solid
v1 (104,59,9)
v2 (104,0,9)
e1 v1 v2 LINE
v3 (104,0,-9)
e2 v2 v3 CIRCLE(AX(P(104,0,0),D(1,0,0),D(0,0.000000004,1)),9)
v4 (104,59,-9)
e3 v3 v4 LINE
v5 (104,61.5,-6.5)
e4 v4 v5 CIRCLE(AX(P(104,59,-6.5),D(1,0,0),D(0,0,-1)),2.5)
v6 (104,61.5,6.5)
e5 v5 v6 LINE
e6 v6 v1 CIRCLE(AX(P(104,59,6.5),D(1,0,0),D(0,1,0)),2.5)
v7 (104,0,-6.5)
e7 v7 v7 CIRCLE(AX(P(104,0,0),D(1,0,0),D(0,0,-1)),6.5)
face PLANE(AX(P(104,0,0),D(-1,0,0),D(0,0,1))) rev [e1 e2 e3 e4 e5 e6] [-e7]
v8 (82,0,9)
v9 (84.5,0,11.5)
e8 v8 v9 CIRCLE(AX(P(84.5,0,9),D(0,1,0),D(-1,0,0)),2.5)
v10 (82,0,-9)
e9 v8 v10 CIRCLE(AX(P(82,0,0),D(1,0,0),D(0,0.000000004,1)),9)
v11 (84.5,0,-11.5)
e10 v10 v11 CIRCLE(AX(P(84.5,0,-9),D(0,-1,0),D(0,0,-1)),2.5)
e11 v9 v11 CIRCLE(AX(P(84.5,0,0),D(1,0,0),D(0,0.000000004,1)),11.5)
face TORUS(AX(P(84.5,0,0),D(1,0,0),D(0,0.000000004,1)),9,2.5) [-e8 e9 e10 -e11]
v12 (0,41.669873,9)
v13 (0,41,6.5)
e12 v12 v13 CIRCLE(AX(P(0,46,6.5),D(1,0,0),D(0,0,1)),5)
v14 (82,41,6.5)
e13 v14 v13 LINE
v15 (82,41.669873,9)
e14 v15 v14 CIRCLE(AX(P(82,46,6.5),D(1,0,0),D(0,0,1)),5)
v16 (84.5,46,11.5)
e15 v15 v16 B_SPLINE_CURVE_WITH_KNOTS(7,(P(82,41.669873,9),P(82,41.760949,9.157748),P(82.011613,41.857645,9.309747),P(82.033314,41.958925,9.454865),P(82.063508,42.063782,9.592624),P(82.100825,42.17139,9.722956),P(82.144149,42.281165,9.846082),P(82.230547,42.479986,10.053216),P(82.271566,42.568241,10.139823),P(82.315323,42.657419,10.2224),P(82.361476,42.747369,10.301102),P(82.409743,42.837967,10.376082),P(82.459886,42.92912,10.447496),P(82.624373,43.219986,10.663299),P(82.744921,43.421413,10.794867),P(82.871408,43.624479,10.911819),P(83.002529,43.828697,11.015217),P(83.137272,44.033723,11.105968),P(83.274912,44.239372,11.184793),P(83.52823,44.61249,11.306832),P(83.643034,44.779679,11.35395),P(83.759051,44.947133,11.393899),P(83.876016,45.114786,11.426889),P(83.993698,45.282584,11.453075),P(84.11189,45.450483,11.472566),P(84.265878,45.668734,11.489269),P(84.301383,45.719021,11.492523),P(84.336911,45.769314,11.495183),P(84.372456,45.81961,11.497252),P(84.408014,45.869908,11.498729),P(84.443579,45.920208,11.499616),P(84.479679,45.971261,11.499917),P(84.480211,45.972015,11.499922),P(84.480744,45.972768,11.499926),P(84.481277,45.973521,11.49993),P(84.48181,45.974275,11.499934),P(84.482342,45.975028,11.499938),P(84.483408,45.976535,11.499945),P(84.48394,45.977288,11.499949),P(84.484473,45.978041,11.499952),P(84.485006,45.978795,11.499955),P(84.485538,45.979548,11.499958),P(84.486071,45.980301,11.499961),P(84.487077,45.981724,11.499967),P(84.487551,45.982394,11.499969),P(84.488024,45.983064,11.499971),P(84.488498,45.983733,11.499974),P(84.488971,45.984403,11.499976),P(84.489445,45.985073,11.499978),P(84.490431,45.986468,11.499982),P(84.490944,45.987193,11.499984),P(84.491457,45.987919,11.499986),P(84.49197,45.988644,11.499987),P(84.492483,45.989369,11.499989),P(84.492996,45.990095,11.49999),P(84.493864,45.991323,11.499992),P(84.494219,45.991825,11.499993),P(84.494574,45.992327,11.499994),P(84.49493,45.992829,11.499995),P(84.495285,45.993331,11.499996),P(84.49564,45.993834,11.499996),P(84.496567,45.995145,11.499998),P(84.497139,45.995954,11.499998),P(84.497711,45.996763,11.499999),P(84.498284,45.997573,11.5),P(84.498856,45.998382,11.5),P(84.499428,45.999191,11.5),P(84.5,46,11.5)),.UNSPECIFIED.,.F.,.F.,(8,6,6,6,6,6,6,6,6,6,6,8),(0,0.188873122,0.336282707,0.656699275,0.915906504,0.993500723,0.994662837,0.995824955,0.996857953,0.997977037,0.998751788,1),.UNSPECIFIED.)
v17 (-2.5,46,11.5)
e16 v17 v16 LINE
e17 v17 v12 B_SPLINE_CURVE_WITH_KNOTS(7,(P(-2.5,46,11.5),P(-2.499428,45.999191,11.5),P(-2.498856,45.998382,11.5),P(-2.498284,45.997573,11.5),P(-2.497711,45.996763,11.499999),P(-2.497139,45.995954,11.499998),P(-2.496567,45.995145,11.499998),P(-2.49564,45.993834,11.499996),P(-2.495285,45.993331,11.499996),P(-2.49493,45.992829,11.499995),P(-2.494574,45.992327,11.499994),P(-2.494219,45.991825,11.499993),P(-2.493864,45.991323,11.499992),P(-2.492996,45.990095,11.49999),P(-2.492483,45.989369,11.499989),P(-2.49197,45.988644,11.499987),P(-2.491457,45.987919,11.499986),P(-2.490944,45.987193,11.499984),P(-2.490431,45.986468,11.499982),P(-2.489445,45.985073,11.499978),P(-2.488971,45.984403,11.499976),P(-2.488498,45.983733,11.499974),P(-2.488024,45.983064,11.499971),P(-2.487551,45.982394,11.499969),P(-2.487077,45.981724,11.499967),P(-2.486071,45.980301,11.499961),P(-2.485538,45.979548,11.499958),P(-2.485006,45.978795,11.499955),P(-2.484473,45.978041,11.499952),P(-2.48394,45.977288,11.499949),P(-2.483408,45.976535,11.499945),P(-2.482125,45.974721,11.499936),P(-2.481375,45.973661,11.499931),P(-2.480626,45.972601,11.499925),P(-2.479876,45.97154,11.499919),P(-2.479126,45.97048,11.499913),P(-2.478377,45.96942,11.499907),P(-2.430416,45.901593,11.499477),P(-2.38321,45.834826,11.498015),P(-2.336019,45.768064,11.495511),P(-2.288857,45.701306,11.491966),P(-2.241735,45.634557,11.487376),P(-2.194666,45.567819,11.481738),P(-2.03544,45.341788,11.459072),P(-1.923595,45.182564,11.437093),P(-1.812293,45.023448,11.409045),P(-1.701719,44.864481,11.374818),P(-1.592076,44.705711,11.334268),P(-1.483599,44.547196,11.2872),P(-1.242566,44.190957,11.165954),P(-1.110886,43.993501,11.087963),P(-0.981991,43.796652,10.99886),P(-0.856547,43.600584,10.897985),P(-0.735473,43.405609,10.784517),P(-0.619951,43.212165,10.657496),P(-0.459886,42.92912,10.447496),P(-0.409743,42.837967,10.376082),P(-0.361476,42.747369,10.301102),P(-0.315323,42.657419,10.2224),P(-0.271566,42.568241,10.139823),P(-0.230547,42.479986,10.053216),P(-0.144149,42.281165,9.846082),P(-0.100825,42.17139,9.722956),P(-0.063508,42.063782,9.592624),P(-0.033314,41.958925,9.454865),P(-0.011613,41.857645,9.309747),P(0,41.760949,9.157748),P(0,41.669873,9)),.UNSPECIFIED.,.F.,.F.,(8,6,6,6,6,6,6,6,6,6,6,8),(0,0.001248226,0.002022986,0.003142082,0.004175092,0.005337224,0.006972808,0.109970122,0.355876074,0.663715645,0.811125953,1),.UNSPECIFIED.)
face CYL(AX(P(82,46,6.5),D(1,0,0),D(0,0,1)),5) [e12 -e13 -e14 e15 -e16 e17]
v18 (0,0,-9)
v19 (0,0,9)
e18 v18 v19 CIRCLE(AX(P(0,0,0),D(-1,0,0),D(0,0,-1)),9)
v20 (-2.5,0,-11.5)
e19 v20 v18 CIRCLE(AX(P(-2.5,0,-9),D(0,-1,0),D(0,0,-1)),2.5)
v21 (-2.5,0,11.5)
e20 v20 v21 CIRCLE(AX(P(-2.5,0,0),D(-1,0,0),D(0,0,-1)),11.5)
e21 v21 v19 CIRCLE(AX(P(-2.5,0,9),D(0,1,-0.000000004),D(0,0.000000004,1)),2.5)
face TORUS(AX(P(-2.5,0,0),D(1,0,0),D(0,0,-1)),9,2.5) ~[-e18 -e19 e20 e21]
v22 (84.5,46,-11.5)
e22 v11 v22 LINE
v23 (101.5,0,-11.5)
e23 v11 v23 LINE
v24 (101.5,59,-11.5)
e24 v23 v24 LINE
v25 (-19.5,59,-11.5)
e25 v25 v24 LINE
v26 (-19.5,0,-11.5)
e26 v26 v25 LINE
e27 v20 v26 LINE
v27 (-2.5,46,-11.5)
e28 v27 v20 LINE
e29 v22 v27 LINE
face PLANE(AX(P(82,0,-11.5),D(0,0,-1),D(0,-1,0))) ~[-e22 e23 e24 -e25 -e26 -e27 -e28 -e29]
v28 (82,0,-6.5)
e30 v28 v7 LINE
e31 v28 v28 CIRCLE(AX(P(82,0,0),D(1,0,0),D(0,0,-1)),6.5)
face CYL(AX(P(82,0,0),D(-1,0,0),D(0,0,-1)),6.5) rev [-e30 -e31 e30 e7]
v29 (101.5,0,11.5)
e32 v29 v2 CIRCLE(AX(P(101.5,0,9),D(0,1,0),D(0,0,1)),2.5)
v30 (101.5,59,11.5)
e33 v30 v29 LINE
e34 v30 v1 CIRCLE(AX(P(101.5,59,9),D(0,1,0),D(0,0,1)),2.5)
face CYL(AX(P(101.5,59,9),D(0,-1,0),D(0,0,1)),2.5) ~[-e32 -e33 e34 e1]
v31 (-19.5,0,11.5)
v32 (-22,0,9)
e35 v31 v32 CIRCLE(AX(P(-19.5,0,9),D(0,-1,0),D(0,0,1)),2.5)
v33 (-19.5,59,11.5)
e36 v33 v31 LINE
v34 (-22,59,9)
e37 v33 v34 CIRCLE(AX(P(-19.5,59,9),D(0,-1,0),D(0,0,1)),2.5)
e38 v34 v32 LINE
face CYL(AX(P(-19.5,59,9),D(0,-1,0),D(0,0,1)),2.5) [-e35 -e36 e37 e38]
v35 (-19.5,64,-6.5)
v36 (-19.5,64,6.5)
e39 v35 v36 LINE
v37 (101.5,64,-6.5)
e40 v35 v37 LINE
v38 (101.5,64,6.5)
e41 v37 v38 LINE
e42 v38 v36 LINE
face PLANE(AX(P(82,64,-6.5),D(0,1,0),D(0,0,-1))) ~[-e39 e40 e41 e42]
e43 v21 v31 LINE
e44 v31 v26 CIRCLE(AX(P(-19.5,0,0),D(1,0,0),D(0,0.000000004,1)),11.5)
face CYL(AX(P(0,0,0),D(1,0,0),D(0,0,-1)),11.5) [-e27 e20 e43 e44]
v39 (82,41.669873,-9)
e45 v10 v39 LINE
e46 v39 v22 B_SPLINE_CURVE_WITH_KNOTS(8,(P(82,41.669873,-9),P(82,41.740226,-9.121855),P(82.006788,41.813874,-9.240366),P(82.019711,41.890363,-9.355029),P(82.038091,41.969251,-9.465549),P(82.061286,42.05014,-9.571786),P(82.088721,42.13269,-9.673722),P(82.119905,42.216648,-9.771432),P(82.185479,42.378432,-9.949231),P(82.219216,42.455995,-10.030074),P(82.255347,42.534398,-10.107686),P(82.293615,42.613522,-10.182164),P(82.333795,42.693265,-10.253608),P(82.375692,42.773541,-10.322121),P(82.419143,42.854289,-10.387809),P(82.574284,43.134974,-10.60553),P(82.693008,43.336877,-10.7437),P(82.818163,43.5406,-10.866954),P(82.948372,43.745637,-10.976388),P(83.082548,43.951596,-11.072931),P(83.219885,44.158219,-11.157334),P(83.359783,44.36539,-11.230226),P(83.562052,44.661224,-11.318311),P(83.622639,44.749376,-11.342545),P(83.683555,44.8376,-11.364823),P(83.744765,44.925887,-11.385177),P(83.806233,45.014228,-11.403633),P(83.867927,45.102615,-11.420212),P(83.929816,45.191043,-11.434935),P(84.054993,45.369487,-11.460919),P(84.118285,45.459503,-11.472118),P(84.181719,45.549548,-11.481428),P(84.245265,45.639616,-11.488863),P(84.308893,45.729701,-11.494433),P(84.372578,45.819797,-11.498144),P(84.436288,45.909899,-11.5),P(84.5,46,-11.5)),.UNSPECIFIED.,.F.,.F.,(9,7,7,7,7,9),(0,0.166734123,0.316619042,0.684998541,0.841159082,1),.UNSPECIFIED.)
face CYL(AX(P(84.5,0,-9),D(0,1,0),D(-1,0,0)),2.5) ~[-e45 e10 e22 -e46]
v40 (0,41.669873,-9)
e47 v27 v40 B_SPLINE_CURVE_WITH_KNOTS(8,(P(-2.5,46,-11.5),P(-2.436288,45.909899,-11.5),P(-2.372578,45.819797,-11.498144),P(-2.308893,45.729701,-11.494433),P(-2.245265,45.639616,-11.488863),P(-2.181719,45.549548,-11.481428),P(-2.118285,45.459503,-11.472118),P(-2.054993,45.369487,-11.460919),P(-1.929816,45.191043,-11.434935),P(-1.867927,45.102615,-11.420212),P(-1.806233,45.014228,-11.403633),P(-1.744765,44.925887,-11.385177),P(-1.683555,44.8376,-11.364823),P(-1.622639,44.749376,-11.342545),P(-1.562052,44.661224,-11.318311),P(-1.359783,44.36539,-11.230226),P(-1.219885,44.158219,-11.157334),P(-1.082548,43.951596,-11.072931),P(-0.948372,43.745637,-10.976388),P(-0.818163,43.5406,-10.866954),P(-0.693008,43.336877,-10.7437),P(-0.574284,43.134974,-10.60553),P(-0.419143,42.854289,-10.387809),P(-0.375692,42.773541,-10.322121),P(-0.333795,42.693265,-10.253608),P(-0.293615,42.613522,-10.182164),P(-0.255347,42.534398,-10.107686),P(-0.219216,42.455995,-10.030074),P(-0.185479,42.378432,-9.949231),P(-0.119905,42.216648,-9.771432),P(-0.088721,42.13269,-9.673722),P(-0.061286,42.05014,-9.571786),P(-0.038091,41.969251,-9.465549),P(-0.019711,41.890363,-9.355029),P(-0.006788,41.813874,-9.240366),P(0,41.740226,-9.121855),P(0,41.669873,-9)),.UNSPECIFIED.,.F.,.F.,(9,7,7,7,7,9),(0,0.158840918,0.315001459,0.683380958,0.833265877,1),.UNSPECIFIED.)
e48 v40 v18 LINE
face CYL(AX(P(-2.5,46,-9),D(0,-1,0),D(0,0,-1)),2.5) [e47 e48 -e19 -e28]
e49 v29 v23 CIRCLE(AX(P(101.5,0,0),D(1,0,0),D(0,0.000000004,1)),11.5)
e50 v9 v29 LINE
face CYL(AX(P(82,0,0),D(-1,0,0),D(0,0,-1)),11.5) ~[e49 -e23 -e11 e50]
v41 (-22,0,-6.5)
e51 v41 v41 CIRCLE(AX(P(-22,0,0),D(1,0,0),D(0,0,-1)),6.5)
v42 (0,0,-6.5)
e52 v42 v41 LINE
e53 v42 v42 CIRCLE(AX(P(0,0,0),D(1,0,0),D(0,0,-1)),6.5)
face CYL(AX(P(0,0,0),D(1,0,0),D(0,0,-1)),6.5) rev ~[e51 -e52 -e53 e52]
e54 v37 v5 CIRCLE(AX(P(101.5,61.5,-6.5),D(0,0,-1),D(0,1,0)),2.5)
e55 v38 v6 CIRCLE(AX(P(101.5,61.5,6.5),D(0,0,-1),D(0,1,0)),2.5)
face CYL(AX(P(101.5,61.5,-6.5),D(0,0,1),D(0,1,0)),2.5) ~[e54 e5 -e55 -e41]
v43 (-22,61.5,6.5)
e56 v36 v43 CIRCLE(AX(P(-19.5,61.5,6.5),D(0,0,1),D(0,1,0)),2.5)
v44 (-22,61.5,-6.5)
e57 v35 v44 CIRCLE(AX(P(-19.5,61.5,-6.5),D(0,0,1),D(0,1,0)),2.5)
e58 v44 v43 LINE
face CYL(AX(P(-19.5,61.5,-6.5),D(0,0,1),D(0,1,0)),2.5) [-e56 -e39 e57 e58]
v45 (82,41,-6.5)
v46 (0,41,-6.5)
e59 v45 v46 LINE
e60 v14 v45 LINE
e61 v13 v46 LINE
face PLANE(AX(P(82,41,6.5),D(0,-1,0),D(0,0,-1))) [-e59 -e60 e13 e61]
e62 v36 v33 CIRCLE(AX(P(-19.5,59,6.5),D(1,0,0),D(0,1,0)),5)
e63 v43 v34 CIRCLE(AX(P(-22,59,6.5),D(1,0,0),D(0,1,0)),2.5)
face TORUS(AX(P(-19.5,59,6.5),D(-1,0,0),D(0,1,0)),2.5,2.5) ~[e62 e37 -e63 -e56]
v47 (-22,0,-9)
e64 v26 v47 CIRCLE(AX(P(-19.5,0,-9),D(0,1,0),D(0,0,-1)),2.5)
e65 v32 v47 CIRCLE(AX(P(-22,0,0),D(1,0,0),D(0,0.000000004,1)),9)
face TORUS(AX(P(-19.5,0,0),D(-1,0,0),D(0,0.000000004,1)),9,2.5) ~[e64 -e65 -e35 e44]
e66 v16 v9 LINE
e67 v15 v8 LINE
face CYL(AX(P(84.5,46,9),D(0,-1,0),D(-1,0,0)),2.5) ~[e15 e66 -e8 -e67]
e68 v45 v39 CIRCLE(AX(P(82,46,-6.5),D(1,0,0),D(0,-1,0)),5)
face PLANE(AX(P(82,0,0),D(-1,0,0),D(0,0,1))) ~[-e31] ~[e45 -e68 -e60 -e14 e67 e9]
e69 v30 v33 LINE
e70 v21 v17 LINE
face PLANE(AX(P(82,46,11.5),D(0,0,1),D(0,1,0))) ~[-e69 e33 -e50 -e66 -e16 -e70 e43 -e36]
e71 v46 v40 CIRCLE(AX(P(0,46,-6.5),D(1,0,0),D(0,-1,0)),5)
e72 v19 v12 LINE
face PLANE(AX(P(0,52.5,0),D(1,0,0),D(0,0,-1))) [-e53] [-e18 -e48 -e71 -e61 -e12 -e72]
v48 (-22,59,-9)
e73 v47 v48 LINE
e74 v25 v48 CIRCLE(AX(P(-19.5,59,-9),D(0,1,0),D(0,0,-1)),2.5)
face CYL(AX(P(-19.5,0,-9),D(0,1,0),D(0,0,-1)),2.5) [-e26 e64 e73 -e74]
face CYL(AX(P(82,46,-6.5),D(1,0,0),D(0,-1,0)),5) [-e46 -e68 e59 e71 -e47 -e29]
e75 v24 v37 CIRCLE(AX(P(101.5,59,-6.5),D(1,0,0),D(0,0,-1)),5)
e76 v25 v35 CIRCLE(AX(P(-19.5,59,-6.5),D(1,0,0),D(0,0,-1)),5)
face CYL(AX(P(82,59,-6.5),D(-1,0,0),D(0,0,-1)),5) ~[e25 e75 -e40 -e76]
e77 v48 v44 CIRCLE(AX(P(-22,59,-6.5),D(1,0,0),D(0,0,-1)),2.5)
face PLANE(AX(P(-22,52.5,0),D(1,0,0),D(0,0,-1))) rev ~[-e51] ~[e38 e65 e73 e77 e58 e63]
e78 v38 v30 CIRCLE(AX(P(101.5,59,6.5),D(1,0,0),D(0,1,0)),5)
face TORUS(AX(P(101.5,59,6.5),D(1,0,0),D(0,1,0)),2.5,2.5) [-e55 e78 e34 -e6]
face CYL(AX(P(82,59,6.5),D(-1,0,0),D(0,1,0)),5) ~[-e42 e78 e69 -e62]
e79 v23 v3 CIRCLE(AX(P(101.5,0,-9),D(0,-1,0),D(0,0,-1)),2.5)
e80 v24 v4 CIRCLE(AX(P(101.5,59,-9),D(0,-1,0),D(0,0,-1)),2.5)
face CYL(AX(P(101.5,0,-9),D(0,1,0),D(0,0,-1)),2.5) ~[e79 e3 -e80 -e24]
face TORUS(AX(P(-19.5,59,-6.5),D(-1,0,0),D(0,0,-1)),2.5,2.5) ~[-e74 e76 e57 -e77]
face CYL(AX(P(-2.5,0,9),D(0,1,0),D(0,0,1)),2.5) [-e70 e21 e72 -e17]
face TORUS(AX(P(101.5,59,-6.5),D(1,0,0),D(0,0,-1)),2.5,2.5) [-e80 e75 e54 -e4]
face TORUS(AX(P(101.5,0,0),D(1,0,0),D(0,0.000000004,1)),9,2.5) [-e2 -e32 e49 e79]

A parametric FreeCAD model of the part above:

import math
import FreeCAD as App
import Part
import Sketcher

V = App.Vector


def edges_at(feature, points):
    """Names of the edges that pass closest to the given points."""
    edges = feature.Shape.Edges
    near = lambda p: min(range(len(edges)), key=lambda i: edges[i].distToShape(Part.Vertex(*p))[0])
    return sorted({f"Edge{near(p) + 1}" for p in points})

doc = App.newDocument("Part")
body = doc.addObject("PartDesign::Body", "Body")

sketch1 = body.newObject("Sketcher::SketchObject", "Sketch")
sketch1.AttachmentSupport = (doc.getObject("YZ_Plane"), [""])
sketch1.MapMode = "FlatFace"
sketch1.addGeometry([
    Part.ArcOfCircle(Part.Circle(V(0, 0, 0), V(0, 0, 1), 12), math.radians(90), math.radians(270)),
    Part.LineSegment(V(0, -12, 0), V(59, -12, 0)),
    Part.ArcOfCircle(Part.Circle(V(59, -6, 0), V(0, 0, 1), 5), math.radians(-90), math.radians(0)),
    Part.LineSegment(V(64, -6, 0), V(64, 6, 0)),
    Part.ArcOfCircle(Part.Circle(V(59, 6, 0), V(0, 0, 1), 5), math.radians(0), math.radians(90)),
    Part.LineSegment(V(59, 12, 0), V(0, 12, 0)),
    Part.Circle(V(0, 0, 0), V(0, 0, 1), 6),
], False)
sketch1.addConstraint([
    Sketcher.Constraint("Tangent", 0, 2, 1, 1),
    Sketcher.Constraint("Tangent", 1, 2, 2, 1),
    Sketcher.Constraint("Tangent", 2, 2, 3, 1),
    Sketcher.Constraint("Tangent", 3, 2, 4, 1),
    Sketcher.Constraint("Tangent", 4, 2, 5, 1),
    Sketcher.Constraint("Tangent", 5, 2, 0, 1),
    Sketcher.Constraint("Horizontal", 1),
    Sketcher.Constraint("Vertical", 3),
    Sketcher.Constraint("Horizontal", 5),
    Sketcher.Constraint("Coincident", 0, 3, -1, 1),
    Sketcher.Constraint("Coincident", 6, 3, -1, 1),
    Sketcher.Constraint("Equal", 2, 4),
    Sketcher.Constraint("Diameter", 6, 13.0),
    Sketcher.Constraint("Radius", 2, 5.0),
    Sketcher.Constraint("Radius", 0, 11.5),
    Sketcher.Constraint("DistanceX", 1, 1, 1, 2, 59.0),
])
pad1 = body.newObject("PartDesign::Pad", "Pad")
pad1.Profile = sketch1
pad1.Length = 22
pad1.Reversed = True

sketch2 = body.newObject("Sketcher::SketchObject", "Sketch001")
sketch2.AttachmentSupport = (doc.getObject("YZ_Plane"), [""])
sketch2.MapMode = "FlatFace"
sketch2.AttachmentOffset = App.Placement(V(0, 0, 82), App.Rotation())
sketch2.addGeometry([
    Part.LineSegment(V(59, 12, 0), V(46, 12, 0)),
    Part.ArcOfCircle(Part.Circle(V(46, 6, 0), V(0, 0, 1), 5), math.radians(90), math.radians(180)),
    Part.LineSegment(V(41, 6, 0), V(41, -6, 0)),
    Part.ArcOfCircle(Part.Circle(V(46, -6, 0), V(0, 0, 1), 5), math.radians(180), math.radians(270)),
    Part.LineSegment(V(46, -12, 0), V(59, -12, 0)),
    Part.ArcOfCircle(Part.Circle(V(59, -6, 0), V(0, 0, 1), 5), math.radians(-90), math.radians(0)),
    Part.LineSegment(V(64, -6, 0), V(64, 6, 0)),
    Part.ArcOfCircle(Part.Circle(V(59, 6, 0), V(0, 0, 1), 5), math.radians(0), math.radians(90)),
], False)
sketch2.addConstraint([
    Sketcher.Constraint("Tangent", 0, 2, 1, 1),
    Sketcher.Constraint("Tangent", 1, 2, 2, 1),
    Sketcher.Constraint("Tangent", 2, 2, 3, 1),
    Sketcher.Constraint("Tangent", 3, 2, 4, 1),
    Sketcher.Constraint("Tangent", 4, 2, 5, 1),
    Sketcher.Constraint("Tangent", 5, 2, 6, 1),
    Sketcher.Constraint("Tangent", 6, 2, 7, 1),
    Sketcher.Constraint("Tangent", 7, 2, 0, 1),
    Sketcher.Constraint("Horizontal", 0),
    Sketcher.Constraint("Vertical", 2),
    Sketcher.Constraint("Horizontal", 4),
    Sketcher.Constraint("Vertical", 6),
    Sketcher.Constraint("Equal", 1, 3),
    Sketcher.Constraint("Equal", 3, 5),
    Sketcher.Constraint("Equal", 5, 7),
    Sketcher.Constraint("Equal", 4, 2),
    Sketcher.Constraint("Radius", 1, 5.0),
    Sketcher.Constraint("DistanceX", 0, 2, 0, 1, 13.0),
    Sketcher.Constraint("DistanceX", -1, 1, 1, 3, 46.0),
    Sketcher.Constraint("DistanceY", -1, 1, 1, 3, 6.5),
])
pad2 = body.newObject("PartDesign::Pad", "Pad001")
pad2.Profile = sketch2
pad2.Length = 82
pad2.Reversed = True
doc.recompute()

fillet = body.newObject("PartDesign::Fillet", "Fillet")
fillet.Base = (pad2, edges_at(pad2, [
    (0, 23, 11.5),
    (0, 23, -11.5),
    (-22, 62.536, -10.036),
    (-22, 64, 0),
    (-22, 62.536, 10.036),
    (-22, 29.5, 11.5),
    (-22, -11.5, 0),
    (-22, 29.5, -11.5),
    (0, -11.5, 0),
]))
fillet.Radius = 2.5
doc.recompute()

datumplane = body.newObject("PartDesign::Plane", "DatumPlane")
datumplane.AttachmentSupport = (doc.getObject("YZ_Plane"), [""])
datumplane.MapMode = "FlatFace"
datumplane.AttachmentOffset = App.Placement(V(0, 0, 41), App.Rotation())
mirrored = body.newObject("PartDesign::Mirrored", "Mirrored")
mirrored.Originals = [pad1]
mirrored.MirrorPlane = (datumplane, [""])
body.Tip = mirrored
doc.recompute()

fillet2 = body.newObject("PartDesign::Fillet", "Fillet001")
fillet2.Base = (mirrored, edges_at(mirrored, [
    (82, 23, 11.5),
    (82, 23, -11.5),
    (104, 62.536, -10.036),
    (104, 64, 0),
    (104, 62.536, 10.036),
    (104, 29.5, 11.5),
    (104, -11.5, 0),
    (104, 29.5, -11.5),
    (82, -11.5, 0),
]))
fillet2.Radius = 2.5

doc.recompute()
